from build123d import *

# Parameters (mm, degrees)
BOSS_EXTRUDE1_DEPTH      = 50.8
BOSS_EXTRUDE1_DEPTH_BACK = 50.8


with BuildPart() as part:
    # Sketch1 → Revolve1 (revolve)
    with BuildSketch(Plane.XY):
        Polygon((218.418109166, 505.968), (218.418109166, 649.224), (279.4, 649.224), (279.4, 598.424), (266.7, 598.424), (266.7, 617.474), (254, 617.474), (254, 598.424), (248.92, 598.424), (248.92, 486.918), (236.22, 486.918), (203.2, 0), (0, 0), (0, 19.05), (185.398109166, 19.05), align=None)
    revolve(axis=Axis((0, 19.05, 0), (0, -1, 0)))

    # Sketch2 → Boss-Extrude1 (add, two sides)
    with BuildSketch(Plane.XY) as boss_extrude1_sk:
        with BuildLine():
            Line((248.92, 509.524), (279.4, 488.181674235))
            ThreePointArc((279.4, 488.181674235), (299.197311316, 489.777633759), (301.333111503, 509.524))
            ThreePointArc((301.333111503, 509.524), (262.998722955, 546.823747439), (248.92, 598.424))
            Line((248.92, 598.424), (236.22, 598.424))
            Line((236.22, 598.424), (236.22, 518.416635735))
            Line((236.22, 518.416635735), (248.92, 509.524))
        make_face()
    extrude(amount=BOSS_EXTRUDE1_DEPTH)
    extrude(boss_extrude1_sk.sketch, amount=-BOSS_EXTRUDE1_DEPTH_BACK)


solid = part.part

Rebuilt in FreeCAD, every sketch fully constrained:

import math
import FreeCAD as App
import Part
import Sketcher
Q = App.Units.Quantity

doc = App.newDocument("Part")
params = doc.addObject("Spreadsheet::Sheet", "Params")
for row, (alias, value) in enumerate([
    ("sketch1_width", "8 in"),
    ("sketch1_height", "2 in"),
    ("sketch1_width2", "0.5 in"),
    ("sketch1_width3", "0.2 in"),
    ("sketch1_height2", "5.64 in"),
    ("revolution_angle", "360 deg"),
    ("sketch2_radius", "4 in"),
    ("sketch2_width", "0.5 in"),
    ("pad1_length", "2 in"),
    ("pad1_length2", "2 in"),
], start=1):
    params.set(f"A{row}", alias)
    params.set(f"B{row}", "=" + value)
    params.setAlias(f"B{row}", alias)

body = doc.addObject("PartDesign::Body", "Body")

# Sketch on XY plane
sketch1 = doc.addObject("Sketcher::SketchObject", "Sketch")
body.addObject(sketch1)
sketch1.AttachmentSupport = (doc.XY_Plane, [""])
sketch1.MapMode = "FlatFace"
sketch1.addGeometry(Part.LineSegment(App.Vector(218, 649, 0), App.Vector(218, 506, 0)), False)
sketch1.addGeometry(Part.LineSegment(App.Vector(218, 506, 0), App.Vector(185, 19, 0)), False)
sketch1.addGeometry(Part.LineSegment(App.Vector(185, 19, 0), App.Vector(0, 19, 0)), False)
sketch1.addGeometry(Part.LineSegment(App.Vector(0, 19, 0), App.Vector(0, 0, 0)), False)
sketch1.addGeometry(Part.LineSegment(App.Vector(0, 0, 0), App.Vector(203, 0, 0)), False)
sketch1.addGeometry(Part.LineSegment(App.Vector(203, 0, 0), App.Vector(236, 487, 0)), False)
sketch1.addGeometry(Part.LineSegment(App.Vector(236, 487, 0), App.Vector(249, 487, 0)), False)
sketch1.addGeometry(Part.LineSegment(App.Vector(249, 487, 0), App.Vector(249, 598, 0)), False)
sketch1.addGeometry(Part.LineSegment(App.Vector(249, 598, 0), App.Vector(254, 598, 0)), False)
sketch1.addGeometry(Part.LineSegment(App.Vector(254, 598, 0), App.Vector(254, 617, 0)), False)
sketch1.addGeometry(Part.LineSegment(App.Vector(254, 617, 0), App.Vector(267, 617, 0)), False)
sketch1.addGeometry(Part.LineSegment(App.Vector(267, 617, 0), App.Vector(267, 598, 0)), False)
sketch1.addGeometry(Part.LineSegment(App.Vector(267, 598, 0), App.Vector(279, 598, 0)), False)
sketch1.addGeometry(Part.LineSegment(App.Vector(279, 598, 0), App.Vector(279, 649, 0)), False)
sketch1.addGeometry(Part.LineSegment(App.Vector(279, 649, 0), App.Vector(218, 649, 0)), False)
sketch1.addConstraint(Sketcher.Constraint("Coincident", 0, 2, 1, 1))
sketch1.addConstraint(Sketcher.Constraint("Coincident", 1, 2, 2, 1))
sketch1.addConstraint(Sketcher.Constraint("Coincident", 2, 2, 3, 1))
sketch1.addConstraint(Sketcher.Constraint("Coincident", 3, 2, 4, 1))
sketch1.addConstraint(Sketcher.Constraint("Coincident", 4, 2, 5, 1))
sketch1.addConstraint(Sketcher.Constraint("Coincident", 5, 2, 6, 1))
sketch1.addConstraint(Sketcher.Constraint("Coincident", 6, 2, 7, 1))
sketch1.addConstraint(Sketcher.Constraint("Coincident", 7, 2, 8, 1))
sketch1.addConstraint(Sketcher.Constraint("Coincident", 8, 2, 9, 1))
sketch1.addConstraint(Sketcher.Constraint("Coincident", 9, 2, 10, 1))
sketch1.addConstraint(Sketcher.Constraint("Coincident", 10, 2, 11, 1))
sketch1.addConstraint(Sketcher.Constraint("Coincident", 11, 2, 12, 1))
sketch1.addConstraint(Sketcher.Constraint("Coincident", 12, 2, 13, 1))
sketch1.addConstraint(Sketcher.Constraint("Coincident", 13, 2, 14, 1))
sketch1.addConstraint(Sketcher.Constraint("Coincident", 14, 2, 0, 1))
sketch1.addConstraint(Sketcher.Constraint("Vertical", 0))
sketch1.addConstraint(Sketcher.Constraint("Horizontal", 2))
sketch1.addConstraint(Sketcher.Constraint("Vertical", 3))
sketch1.addConstraint(Sketcher.Constraint("Horizontal", 4))
sketch1.addConstraint(Sketcher.Constraint("Horizontal", 6))
sketch1.addConstraint(Sketcher.Constraint("Vertical", 7))
sketch1.addConstraint(Sketcher.Constraint("Horizontal", 8))
sketch1.addConstraint(Sketcher.Constraint("Vertical", 9))
sketch1.addConstraint(Sketcher.Constraint("Horizontal", 10))
sketch1.addConstraint(Sketcher.Constraint("Vertical", 11))
sketch1.addConstraint(Sketcher.Constraint("Horizontal", 12))
sketch1.addConstraint(Sketcher.Constraint("Vertical", 13))
sketch1.addConstraint(Sketcher.Constraint("Horizontal", 14))
sketch1.addConstraint(Sketcher.Constraint("Coincident", 3, 2, -1, 1))
sketch1.addConstraint(Sketcher.Constraint("Parallel", 1, 5))
sketch1.addConstraint(Sketcher.Constraint("Horizontal", 8, 2, 11, 2))
sketch1.addConstraint(Sketcher.Constraint("Equal", 6, 10))
sketch1.addConstraint(Sketcher.Constraint("Equal", 10, 12))
sketch1.addConstraint(Sketcher.Constraint("Equal", 3, 9))
sketch1.addConstraint(Sketcher.Constraint("Equal", 1, 5))
sketch1.addConstraint(Sketcher.Constraint("DistanceX", 4, 1, 4, 2, Q("8 in")))
sketch1.addConstraint(Sketcher.Constraint("DistanceY", 13, 1, 13, 2, Q("2 in")))
sketch1.addConstraint(Sketcher.Constraint("DistanceX", 6, 1, 6, 2, Q("0.5 in")))
sketch1.addConstraint(Sketcher.Constraint("DistanceX", 8, 1, 8, 2, Q("0.2 in")))
sketch1.addConstraint(Sketcher.Constraint("DistanceX", -1, 1, 8, 2, Q("10 in")))
sketch1.addConstraint(Sketcher.Constraint("DistanceY", 0, 2, 0, 1, Q("5.64 in")))
sketch1.addConstraint(Sketcher.Constraint("DistanceY", 3, 2, 3, 1, Q("0.75 in")))
sketch1.addConstraint(Sketcher.Constraint("DistanceY", -1, 1, 0, 2, Q("19.92 in")))
sketch1.addConstraint(Sketcher.Constraint("DistanceX", 2, 2, 2, 1, 185.398109))
sketch1.setExpression("Constraints[35]", "Params.sketch1_width")
sketch1.setExpression("Constraints[36]", "Params.sketch1_height")
sketch1.setExpression("Constraints[37]", "Params.sketch1_width2")
sketch1.setExpression("Constraints[38]", "Params.sketch1_width3")
sketch1.setExpression("Constraints[40]", "Params.sketch1_height2")
revolution = doc.addObject("PartDesign::Revolution", "Revolution")
body.addObject(revolution)
revolution.Profile = sketch1
revolution.ReferenceAxis = (sketch1, ["V_Axis"])
revolution.setExpression("Angle", "Params.revolution_angle")

# Sketch on XY plane
sketch2 = doc.addObject("Sketcher::SketchObject", "Sketch001")
body.addObject(sketch2)
sketch2.AttachmentSupport = (doc.XY_Plane, [""])
sketch2.MapMode = "FlatFace"
sketch2.addGeometry(Part.LineSegment(App.Vector(249, 510, 0), App.Vector(279, 488, 0)), False)
sketch2.addGeometry(Part.ArcOfCircle(Part.Circle(App.Vector(288, 501, 0), App.Vector(0, 0, 1), 16), math.radians(-125), math.radians(33)), False)
sketch2.addGeometry(Part.ArcOfCircle(Part.Circle(App.Vector(351, 598, 0), App.Vector(0, 0, 1), 102), math.radians(-180), math.radians(-119)), False)
sketch2.addGeometry(Part.LineSegment(App.Vector(249, 598, 0), App.Vector(236, 598, 0)), False)
sketch2.addGeometry(Part.LineSegment(App.Vector(236, 598, 0), App.Vector(236, 518, 0)), False)
sketch2.addGeometry(Part.LineSegment(App.Vector(236, 518, 0), App.Vector(249, 510, 0)), False)
sketch2.addConstraint(Sketcher.Constraint("Tangent", 0, 2, 1, 1))
sketch2.addConstraint(Sketcher.Constraint("Coincident", 1, 2, 2, 2))
sketch2.addConstraint(Sketcher.Constraint("Coincident", 2, 1, 3, 1))
sketch2.addConstraint(Sketcher.Constraint("Coincident", 3, 2, 4, 1))
sketch2.addConstraint(Sketcher.Constraint("Coincident", 4, 2, 5, 1))
sketch2.addConstraint(Sketcher.Constraint("Coincident", 5, 2, 0, 1))
sketch2.addConstraint(Sketcher.Constraint("Horizontal", 3))
sketch2.addConstraint(Sketcher.Constraint("Vertical", 4))
sketch2.addConstraint(Sketcher.Constraint("Parallel", 0, 5))
sketch2.addConstraint(Sketcher.Constraint("Horizontal", 1, 2, 5, 2))
sketch2.addConstraint(Sketcher.Constraint("Vertical", 2, 1, 5, 2))
sketch2.addConstraint(Sketcher.Constraint("Radius", 2, Q("4 in")))
sketch2.addConstraint(Sketcher.Constraint("DistanceX", 3, 2, 3, 1, Q("0.5 in")))
sketch2.addConstraint(Sketcher.Constraint("DistanceX", -1, 1, 0, 2, Q("11 in")))
sketch2.addConstraint(Sketcher.Constraint("Angle", 0, Q("-35 deg")))
sketch2.addConstraint(Sketcher.Constraint("DistanceX", -1, 1, 2, 3, Q("13.8 in")))
sketch2.addConstraint(Sketcher.Constraint("DistanceY", 1, 2, 2, 3, Q("3.5 in")))
sketch2.addConstraint(Sketcher.Constraint("DistanceY", 1, 2, 2, 1, Q("3.5 in")))
sketch2.addConstraint(Sketcher.Constraint("DistanceY", -1, 1, 2, 3, Q("23.56 in")))
sketch2.setExpression("Constraints[11]", "Params.sketch2_radius")
sketch2.setExpression("Constraints[12]", "Params.sketch2_width")
pad1 = doc.addObject("PartDesign::Pad", "Pad")
body.addObject(pad1)
pad1.Profile = sketch2
pad1.Type = "TwoLengths"
pad1.setExpression("Length", "Params.pad1_length")
pad1.setExpression("Length2", "Params.pad1_length2")

doc.recompute()
